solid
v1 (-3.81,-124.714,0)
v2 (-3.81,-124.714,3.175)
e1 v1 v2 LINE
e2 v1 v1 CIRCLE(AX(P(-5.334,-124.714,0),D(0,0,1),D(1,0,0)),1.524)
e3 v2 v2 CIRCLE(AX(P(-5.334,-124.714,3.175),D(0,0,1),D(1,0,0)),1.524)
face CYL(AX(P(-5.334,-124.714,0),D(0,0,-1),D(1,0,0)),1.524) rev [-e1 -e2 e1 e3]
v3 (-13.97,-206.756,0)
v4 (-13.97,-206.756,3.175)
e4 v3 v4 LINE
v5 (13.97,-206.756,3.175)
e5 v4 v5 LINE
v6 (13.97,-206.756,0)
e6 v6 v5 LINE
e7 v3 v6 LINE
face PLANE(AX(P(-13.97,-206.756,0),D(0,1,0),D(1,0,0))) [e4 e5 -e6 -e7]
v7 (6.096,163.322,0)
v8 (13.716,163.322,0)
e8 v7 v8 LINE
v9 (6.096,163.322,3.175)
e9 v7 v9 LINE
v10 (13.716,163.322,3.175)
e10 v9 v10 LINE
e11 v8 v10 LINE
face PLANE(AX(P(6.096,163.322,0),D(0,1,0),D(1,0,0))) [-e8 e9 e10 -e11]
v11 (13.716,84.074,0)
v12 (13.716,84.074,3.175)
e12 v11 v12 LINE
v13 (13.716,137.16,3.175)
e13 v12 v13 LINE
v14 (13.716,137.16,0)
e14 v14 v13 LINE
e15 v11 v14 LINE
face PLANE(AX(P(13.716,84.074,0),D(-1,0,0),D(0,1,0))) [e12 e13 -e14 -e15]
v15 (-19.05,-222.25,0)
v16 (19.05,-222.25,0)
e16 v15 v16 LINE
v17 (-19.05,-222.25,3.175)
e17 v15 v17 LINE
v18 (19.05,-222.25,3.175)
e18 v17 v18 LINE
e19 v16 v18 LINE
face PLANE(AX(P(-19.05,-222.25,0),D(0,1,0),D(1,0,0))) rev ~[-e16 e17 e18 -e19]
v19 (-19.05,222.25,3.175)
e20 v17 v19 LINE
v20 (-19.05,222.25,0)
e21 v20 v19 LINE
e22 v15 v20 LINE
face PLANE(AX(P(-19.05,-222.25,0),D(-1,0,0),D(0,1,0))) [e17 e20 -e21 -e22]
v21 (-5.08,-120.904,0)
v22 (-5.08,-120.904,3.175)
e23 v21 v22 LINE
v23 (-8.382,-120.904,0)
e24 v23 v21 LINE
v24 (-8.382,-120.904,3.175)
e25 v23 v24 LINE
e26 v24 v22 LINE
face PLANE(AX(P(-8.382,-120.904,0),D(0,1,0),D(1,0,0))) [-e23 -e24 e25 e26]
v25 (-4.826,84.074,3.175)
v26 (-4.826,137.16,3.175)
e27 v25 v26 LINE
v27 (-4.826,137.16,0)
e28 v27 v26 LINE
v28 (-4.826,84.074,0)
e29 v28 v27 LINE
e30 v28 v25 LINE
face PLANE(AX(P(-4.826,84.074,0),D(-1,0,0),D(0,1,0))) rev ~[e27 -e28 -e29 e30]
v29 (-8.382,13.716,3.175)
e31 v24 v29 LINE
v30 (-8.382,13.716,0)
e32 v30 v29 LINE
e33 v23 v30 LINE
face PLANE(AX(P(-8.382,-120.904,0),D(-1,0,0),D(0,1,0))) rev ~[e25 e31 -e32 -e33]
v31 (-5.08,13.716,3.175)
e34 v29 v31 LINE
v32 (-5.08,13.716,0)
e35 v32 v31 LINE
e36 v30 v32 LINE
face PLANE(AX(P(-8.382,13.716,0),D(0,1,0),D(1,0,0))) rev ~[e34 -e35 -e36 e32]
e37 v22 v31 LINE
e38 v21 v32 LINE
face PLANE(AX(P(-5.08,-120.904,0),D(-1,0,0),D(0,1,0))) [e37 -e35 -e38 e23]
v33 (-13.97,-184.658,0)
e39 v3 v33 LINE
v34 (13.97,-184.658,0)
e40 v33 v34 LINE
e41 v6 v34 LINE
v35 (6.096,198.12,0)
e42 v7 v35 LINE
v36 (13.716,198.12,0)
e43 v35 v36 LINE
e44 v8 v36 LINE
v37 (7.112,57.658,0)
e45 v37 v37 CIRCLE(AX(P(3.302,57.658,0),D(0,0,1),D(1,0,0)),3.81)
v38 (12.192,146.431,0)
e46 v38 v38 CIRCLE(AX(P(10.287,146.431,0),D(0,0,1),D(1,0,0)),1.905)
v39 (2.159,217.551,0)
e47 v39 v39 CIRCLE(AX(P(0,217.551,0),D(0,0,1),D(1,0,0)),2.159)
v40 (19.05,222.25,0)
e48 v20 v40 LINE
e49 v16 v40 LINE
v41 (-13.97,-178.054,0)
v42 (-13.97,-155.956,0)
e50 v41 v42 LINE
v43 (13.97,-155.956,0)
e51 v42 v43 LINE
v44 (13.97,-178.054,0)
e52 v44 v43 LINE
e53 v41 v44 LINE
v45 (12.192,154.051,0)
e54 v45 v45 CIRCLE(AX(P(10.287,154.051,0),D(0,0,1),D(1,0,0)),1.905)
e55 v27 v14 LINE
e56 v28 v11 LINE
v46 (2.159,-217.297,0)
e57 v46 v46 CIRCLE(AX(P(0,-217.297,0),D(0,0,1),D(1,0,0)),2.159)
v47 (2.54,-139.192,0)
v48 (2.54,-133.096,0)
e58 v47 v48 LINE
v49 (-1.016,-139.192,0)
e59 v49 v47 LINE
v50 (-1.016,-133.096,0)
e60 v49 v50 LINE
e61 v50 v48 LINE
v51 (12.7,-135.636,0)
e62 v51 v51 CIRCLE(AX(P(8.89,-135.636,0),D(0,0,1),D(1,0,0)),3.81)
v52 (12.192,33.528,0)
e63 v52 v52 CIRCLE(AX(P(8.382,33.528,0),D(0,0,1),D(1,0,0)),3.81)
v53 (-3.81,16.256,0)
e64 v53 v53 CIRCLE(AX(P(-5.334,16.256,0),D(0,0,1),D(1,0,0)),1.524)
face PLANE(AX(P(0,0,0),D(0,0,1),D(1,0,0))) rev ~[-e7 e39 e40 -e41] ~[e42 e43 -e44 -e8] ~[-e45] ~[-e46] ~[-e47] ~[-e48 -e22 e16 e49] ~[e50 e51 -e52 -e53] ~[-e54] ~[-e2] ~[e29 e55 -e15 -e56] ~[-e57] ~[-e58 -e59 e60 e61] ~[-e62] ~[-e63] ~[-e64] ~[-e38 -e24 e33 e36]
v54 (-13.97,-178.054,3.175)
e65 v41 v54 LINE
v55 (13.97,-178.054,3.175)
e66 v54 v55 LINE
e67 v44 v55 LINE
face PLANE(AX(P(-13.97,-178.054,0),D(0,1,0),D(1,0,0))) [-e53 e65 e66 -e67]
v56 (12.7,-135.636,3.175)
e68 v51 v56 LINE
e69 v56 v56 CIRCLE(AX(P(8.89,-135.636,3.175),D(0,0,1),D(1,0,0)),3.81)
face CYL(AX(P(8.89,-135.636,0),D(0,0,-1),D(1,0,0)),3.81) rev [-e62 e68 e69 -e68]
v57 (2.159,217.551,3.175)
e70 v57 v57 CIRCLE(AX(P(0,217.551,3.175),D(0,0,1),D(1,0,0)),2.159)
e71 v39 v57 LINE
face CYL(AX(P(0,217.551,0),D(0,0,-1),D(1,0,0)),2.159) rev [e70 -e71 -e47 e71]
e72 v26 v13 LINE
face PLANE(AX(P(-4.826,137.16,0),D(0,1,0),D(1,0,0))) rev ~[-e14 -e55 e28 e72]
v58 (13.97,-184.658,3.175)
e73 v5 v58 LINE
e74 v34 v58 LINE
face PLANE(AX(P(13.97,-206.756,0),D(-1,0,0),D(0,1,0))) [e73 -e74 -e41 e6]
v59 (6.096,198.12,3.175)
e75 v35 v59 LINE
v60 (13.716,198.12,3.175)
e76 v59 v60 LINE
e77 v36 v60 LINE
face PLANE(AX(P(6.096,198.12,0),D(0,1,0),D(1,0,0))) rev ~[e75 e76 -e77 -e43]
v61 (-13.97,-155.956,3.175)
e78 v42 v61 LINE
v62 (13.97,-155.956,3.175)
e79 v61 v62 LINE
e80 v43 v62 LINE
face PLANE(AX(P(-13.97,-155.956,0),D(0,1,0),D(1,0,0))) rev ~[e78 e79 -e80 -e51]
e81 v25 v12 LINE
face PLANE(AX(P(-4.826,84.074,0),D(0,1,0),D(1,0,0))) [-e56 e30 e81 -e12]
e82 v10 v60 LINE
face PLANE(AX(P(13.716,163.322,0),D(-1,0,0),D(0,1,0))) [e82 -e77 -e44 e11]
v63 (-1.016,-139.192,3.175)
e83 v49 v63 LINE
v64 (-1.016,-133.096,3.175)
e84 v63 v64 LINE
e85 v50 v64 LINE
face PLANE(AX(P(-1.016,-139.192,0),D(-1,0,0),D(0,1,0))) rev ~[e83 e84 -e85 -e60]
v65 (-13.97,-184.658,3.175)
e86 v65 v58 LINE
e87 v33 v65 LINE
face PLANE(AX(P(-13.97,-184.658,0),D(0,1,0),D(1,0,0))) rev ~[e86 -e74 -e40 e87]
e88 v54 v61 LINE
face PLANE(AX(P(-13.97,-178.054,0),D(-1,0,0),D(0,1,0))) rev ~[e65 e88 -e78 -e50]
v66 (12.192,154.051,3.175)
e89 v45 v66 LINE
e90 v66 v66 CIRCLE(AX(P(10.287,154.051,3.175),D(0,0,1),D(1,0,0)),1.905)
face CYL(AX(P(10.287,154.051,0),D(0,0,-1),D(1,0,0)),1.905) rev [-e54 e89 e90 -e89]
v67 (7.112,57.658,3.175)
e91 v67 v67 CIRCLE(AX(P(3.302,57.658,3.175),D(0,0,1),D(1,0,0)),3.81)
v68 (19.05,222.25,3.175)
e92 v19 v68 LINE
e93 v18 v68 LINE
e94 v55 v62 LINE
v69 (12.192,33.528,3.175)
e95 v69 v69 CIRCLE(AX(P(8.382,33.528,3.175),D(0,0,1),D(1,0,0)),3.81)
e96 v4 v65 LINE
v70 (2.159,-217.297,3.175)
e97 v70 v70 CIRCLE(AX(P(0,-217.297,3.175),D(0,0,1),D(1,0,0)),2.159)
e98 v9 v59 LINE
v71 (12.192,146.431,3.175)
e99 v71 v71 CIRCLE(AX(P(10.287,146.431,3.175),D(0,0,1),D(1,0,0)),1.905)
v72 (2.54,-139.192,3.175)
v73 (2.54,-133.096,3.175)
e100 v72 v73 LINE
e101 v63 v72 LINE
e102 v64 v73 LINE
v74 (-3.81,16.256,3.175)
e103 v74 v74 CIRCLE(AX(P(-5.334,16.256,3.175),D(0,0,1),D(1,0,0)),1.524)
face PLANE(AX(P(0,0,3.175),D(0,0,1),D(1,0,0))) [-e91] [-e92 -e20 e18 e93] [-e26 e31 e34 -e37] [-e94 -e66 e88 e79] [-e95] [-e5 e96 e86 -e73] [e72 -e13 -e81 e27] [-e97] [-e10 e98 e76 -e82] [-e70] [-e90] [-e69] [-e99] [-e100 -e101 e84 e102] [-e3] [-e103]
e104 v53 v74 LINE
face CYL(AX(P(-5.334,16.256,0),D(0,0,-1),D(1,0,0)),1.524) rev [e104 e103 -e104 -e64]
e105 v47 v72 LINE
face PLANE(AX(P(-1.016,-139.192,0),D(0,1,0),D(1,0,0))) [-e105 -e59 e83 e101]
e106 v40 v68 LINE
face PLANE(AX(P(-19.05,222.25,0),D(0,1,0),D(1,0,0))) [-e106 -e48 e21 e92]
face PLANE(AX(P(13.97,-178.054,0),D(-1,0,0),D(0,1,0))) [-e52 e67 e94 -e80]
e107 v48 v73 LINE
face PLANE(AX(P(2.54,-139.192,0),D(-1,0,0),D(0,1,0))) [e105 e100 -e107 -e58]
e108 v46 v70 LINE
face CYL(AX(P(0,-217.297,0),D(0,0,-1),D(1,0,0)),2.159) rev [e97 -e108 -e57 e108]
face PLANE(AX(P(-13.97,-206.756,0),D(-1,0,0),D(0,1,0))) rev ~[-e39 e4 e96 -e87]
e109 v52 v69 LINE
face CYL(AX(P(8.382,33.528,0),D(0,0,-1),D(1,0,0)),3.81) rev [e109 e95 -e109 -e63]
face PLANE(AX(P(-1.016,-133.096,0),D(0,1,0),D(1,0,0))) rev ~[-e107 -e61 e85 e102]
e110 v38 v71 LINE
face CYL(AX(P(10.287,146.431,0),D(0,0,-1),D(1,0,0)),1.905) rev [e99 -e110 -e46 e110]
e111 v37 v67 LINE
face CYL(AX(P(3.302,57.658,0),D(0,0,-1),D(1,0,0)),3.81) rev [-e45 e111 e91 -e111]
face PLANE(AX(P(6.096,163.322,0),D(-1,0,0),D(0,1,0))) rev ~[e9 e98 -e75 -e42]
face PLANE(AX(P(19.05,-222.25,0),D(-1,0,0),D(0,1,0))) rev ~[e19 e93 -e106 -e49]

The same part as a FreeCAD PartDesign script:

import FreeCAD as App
import Part
import Sketcher
from FreeCAD import Vector
Q = App.Units.Quantity

doc = App.newDocument("Part")
body = doc.addObject("PartDesign::Body", "Body")

# Sketch on XY plane
sketch1 = body.newObject("Sketcher::SketchObject", "Sketch")
sketch1.AttachmentSupport = (doc.getObject("XY_Plane"), [""])
sketch1.MapMode = "FlatFace"
sketch1.addGeometry(Part.LineSegment(Vector(-19.1, 222.2, 0), Vector(-19.1, -222.2, 0)), False)
sketch1.addGeometry(Part.LineSegment(Vector(-19.1, -222.2, 0), Vector(19.1, -222.2, 0)), False)
sketch1.addGeometry(Part.LineSegment(Vector(19.1, -222.2, 0), Vector(19.1, 222.2, 0)), False)
sketch1.addGeometry(Part.LineSegment(Vector(19.1, 222.2, 0), Vector(-19.1, 222.2, 0)), False)
sketch1.addGeometry(Part.Circle(Vector(0, -217.3, 0), Vector(0, 0, 1), 2.2), False)
sketch1.addGeometry(Part.LineSegment(Vector(14, -206.8, 0), Vector(-14, -206.8, 0)), False)
sketch1.addGeometry(Part.LineSegment(Vector(-14, -206.8, 0), Vector(-14, -184.7, 0)), False)
sketch1.addGeometry(Part.LineSegment(Vector(-14, -184.7, 0), Vector(14, -184.7, 0)), False)
sketch1.addGeometry(Part.LineSegment(Vector(14, -184.7, 0), Vector(14, -206.8, 0)), False)
sketch1.addGeometry(Part.LineSegment(Vector(14, -178.1, 0), Vector(-14, -178.1, 0)), False)
sketch1.addGeometry(Part.LineSegment(Vector(-14, -178.1, 0), Vector(-14, -156, 0)), False)
sketch1.addGeometry(Part.LineSegment(Vector(-14, -156, 0), Vector(14, -156, 0)), False)
sketch1.addGeometry(Part.LineSegment(Vector(14, -156, 0), Vector(14, -178.1, 0)), False)
sketch1.addGeometry(Part.Circle(Vector(-5.3, -124.7, 0), Vector(0, 0, 1), 1.5), False)
sketch1.addGeometry(Part.LineSegment(Vector(-5.1, -120.9, 0), Vector(-8.4, -120.9, 0)), False)
sketch1.addGeometry(Part.LineSegment(Vector(-8.4, -120.9, 0), Vector(-8.4, 13.7, 0)), False)
sketch1.addGeometry(Part.LineSegment(Vector(-8.4, 13.7, 0), Vector(-5.1, 13.7, 0)), False)
sketch1.addGeometry(Part.LineSegment(Vector(-5.1, 13.7, 0), Vector(-5.1, -120.9, 0)), False)
sketch1.addGeometry(Part.LineSegment(Vector(2.5, -139.2, 0), Vector(-1, -139.2, 0)), False)
sketch1.addGeometry(Part.LineSegment(Vector(-1, -139.2, 0), Vector(-1, -133.1, 0)), False)
sketch1.addGeometry(Part.LineSegment(Vector(-1, -133.1, 0), Vector(2.5, -133.1, 0)), False)
sketch1.addGeometry(Part.LineSegment(Vector(2.5, -133.1, 0), Vector(2.5, -139.2, 0)), False)
sketch1.addGeometry(Part.Circle(Vector(8.9, -135.6, 0), Vector(0, 0, 1), 3.8), False)
sketch1.addGeometry(Part.Circle(Vector(-5.3, 16.3, 0), Vector(0, 0, 1), 1.5), False)
sketch1.addGeometry(Part.Circle(Vector(0, 217.6, 0), Vector(0, 0, 1), 2.2), False)
sketch1.addGeometry(Part.Circle(Vector(3.3, 57.7, 0), Vector(0, 0, 1), 3.8), False)
sketch1.addGeometry(Part.Circle(Vector(8.4, 33.5, 0), Vector(0, 0, 1), 3.8), False)
sketch1.addGeometry(Part.LineSegment(Vector(13.7, 84.1, 0), Vector(-4.8, 84.1, 0)), False)
sketch1.addGeometry(Part.LineSegment(Vector(-4.8, 84.1, 0), Vector(-4.8, 137.2, 0)), False)
sketch1.addGeometry(Part.LineSegment(Vector(-4.8, 137.2, 0), Vector(13.7, 137.2, 0)), False)
sketch1.addGeometry(Part.LineSegment(Vector(13.7, 137.2, 0), Vector(13.7, 84.1, 0)), False)
sketch1.addGeometry(Part.Circle(Vector(10.3, 146.4, 0), Vector(0, 0, 1), 1.9), False)
sketch1.addGeometry(Part.Circle(Vector(10.3, 154.1, 0), Vector(0, 0, 1), 1.9), False)
sketch1.addGeometry(Part.LineSegment(Vector(13.7, 163.3, 0), Vector(6.1, 163.3, 0)), False)
sketch1.addGeometry(Part.LineSegment(Vector(6.1, 163.3, 0), Vector(6.1, 198.1, 0)), False)
sketch1.addGeometry(Part.LineSegment(Vector(6.1, 198.1, 0), Vector(13.7, 198.1, 0)), False)
sketch1.addGeometry(Part.LineSegment(Vector(13.7, 198.1, 0), Vector(13.7, 163.3, 0)), False)
sketch1.addConstraint(Sketcher.Constraint("Coincident", 0, 2, 1, 1))
sketch1.addConstraint(Sketcher.Constraint("Coincident", 1, 2, 2, 1))
sketch1.addConstraint(Sketcher.Constraint("Coincident", 2, 2, 3, 1))
sketch1.addConstraint(Sketcher.Constraint("Coincident", 3, 2, 0, 1))
sketch1.addConstraint(Sketcher.Constraint("Coincident", 5, 2, 6, 1))
sketch1.addConstraint(Sketcher.Constraint("Coincident", 6, 2, 7, 1))
sketch1.addConstraint(Sketcher.Constraint("Coincident", 7, 2, 8, 1))
sketch1.addConstraint(Sketcher.Constraint("Coincident", 8, 2, 5, 1))
sketch1.addConstraint(Sketcher.Constraint("Coincident", 9, 2, 10, 1))
sketch1.addConstraint(Sketcher.Constraint("Coincident", 10, 2, 11, 1))
sketch1.addConstraint(Sketcher.Constraint("Coincident", 11, 2, 12, 1))
sketch1.addConstraint(Sketcher.Constraint("Coincident", 12, 2, 9, 1))
sketch1.addConstraint(Sketcher.Constraint("Coincident", 14, 2, 15, 1))
sketch1.addConstraint(Sketcher.Constraint("Coincident", 15, 2, 16, 1))
sketch1.addConstraint(Sketcher.Constraint("Coincident", 16, 2, 17, 1))
sketch1.addConstraint(Sketcher.Constraint("Coincident", 17, 2, 14, 1))
sketch1.addConstraint(Sketcher.Constraint("Coincident", 18, 2, 19, 1))
sketch1.addConstraint(Sketcher.Constraint("Coincident", 19, 2, 20, 1))
sketch1.addConstraint(Sketcher.Constraint("Coincident", 20, 2, 21, 1))
sketch1.addConstraint(Sketcher.Constraint("Coincident", 21, 2, 18, 1))
sketch1.addConstraint(Sketcher.Constraint("Coincident", 27, 2, 28, 1))
sketch1.addConstraint(Sketcher.Constraint("Coincident", 28, 2, 29, 1))
sketch1.addConstraint(Sketcher.Constraint("Coincident", 29, 2, 30, 1))
sketch1.addConstraint(Sketcher.Constraint("Coincident", 30, 2, 27, 1))
sketch1.addConstraint(Sketcher.Constraint("Coincident", 33, 2, 34, 1))
sketch1.addConstraint(Sketcher.Constraint("Coincident", 34, 2, 35, 1))
sketch1.addConstraint(Sketcher.Constraint("Coincident", 35, 2, 36, 1))
sketch1.addConstraint(Sketcher.Constraint("Coincident", 36, 2, 33, 1))
sketch1.addConstraint(Sketcher.Constraint("Vertical", 0))
sketch1.addConstraint(Sketcher.Constraint("Horizontal", 1))
sketch1.addConstraint(Sketcher.Constraint("Vertical", 2))
sketch1.addConstraint(Sketcher.Constraint("Horizontal", 3))
sketch1.addConstraint(Sketcher.Constraint("Horizontal", 5))
sketch1.addConstraint(Sketcher.Constraint("Vertical", 6))
sketch1.addConstraint(Sketcher.Constraint("Horizontal", 7))
sketch1.addConstraint(Sketcher.Constraint("Vertical", 8))
sketch1.addConstraint(Sketcher.Constraint("Horizontal", 9))
sketch1.addConstraint(Sketcher.Constraint("Vertical", 10))
sketch1.addConstraint(Sketcher.Constraint("Horizontal", 11))
sketch1.addConstraint(Sketcher.Constraint("Vertical", 12))
sketch1.addConstraint(Sketcher.Constraint("Horizontal", 14))
sketch1.addConstraint(Sketcher.Constraint("Vertical", 15))
sketch1.addConstraint(Sketcher.Constraint("Horizontal", 16))
sketch1.addConstraint(Sketcher.Constraint("Vertical", 17))
sketch1.addConstraint(Sketcher.Constraint("Horizontal", 18))
sketch1.addConstraint(Sketcher.Constraint("Vertical", 19))
sketch1.addConstraint(Sketcher.Constraint("Horizontal", 20))
sketch1.addConstraint(Sketcher.Constraint("Vertical", 21))
sketch1.addConstraint(Sketcher.Constraint("Horizontal", 27))
sketch1.addConstraint(Sketcher.Constraint("Vertical", 28))
sketch1.addConstraint(Sketcher.Constraint("Horizontal", 29))
sketch1.addConstraint(Sketcher.Constraint("Vertical", 30))
sketch1.addConstraint(Sketcher.Constraint("Horizontal", 33))
sketch1.addConstraint(Sketcher.Constraint("Vertical", 34))
sketch1.addConstraint(Sketcher.Constraint("Horizontal", 35))
sketch1.addConstraint(Sketcher.Constraint("Vertical", 36))
sketch1.addConstraint(Sketcher.Constraint("Equal", 13, 23))
sketch1.addConstraint(Sketcher.Constraint("Equal", 4, 24))
sketch1.addConstraint(Sketcher.Constraint("Equal", 22, 25))
sketch1.addConstraint(Sketcher.Constraint("Equal", 25, 26))
sketch1.addConstraint(Sketcher.Constraint("Equal", 31, 32))
sketch1.addConstraint(Sketcher.Constraint("Symmetric", 0, 2, 2, 2, -1, 1))
sketch1.addConstraint(Sketcher.Constraint("PointOnObject", 4, 3, -2))
sketch1.addConstraint(Sketcher.Constraint("PointOnObject", 24, 3, -2))
sketch1.addConstraint(Sketcher.Constraint("Vertical", 13, 3, 23, 3))
sketch1.addConstraint(Sketcher.Constraint("Vertical", 31, 3, 32, 3))
sketch1.addConstraint(Sketcher.Constraint("Vertical", 6, 2, 9, 2))
sketch1.addConstraint(Sketcher.Constraint("Vertical", 8, 2, 11, 2))
sketch1.addConstraint(Sketcher.Constraint("Vertical", 30, 2, 35, 2))
sketch1.addConstraint(Sketcher.Constraint("Equal", 8, 10))
sketch1.addConstraint(Sketcher.Constraint("Diameter", 22, Q("0.3 in")))
sketch1.addConstraint(Sketcher.Constraint("Diameter", 4, Q("0.17 in")))
sketch1.addConstraint(Sketcher.Constraint("Diameter", 13, Q("0.12 in")))
sketch1.addConstraint(Sketcher.Constraint("Diameter", 31, Q("0.15 in")))
sketch1.addConstraint(Sketcher.Constraint("DistanceX", 1, 1, 1, 2, Q("1.5 in")))
sketch1.addConstraint(Sketcher.Constraint("DistanceX", 5, 2, 5, 1, Q("1.1 in")))
sketch1.addConstraint(Sketcher.Constraint("DistanceX", 33, 2, 33, 1, Q("0.3 in")))
sketch1.addConstraint(Sketcher.Constraint("DistanceY", 0, 2, 0, 1, Q("17.5 in")))
sketch1.addConstraint(Sketcher.Constraint("DistanceY", 15, 1, 15, 2, Q("5.3 in")))
sketch1.addConstraint(Sketcher.Constraint("DistanceX", 14, 2, 14, 1, Q("0.13 in")))
sketch1.addConstraint(Sketcher.Constraint("DistanceX", 18, 2, 18, 1, Q("0.14 in")))
sketch1.addConstraint(Sketcher.Constraint("DistanceX", 27, 2, 27, 1, Q("0.73 in")))
sketch1.addConstraint(Sketcher.Constraint("DistanceY", 6, 1, 6, 2, Q("0.87 in")))
sketch1.addConstraint(Sketcher.Constraint("DistanceY", 19, 1, 19, 2, Q("0.24 in")))
sketch1.addConstraint(Sketcher.Constraint("DistanceY", 28, 1, 28, 2, Q("2.09 in")))
sketch1.addConstraint(Sketcher.Constraint("DistanceY", 34, 1, 34, 2, Q("1.37 in")))
sketch1.addConstraint(Sketcher.Constraint("DistanceX", 16, 2, -1, 1, Q("0.2 in")))
sketch1.addConstraint(Sketcher.Constraint("DistanceX", -1, 1, 20, 2, Q("0.1 in")))
sketch1.addConstraint(Sketcher.Constraint("DistanceY", -1, 1, 28, 2, Q("5.4 in")))
sketch1.addConstraint(Sketcher.Constraint("DistanceY", -1, 1, 34, 2, Q("7.8 in")))
sketch1.addConstraint(Sketcher.Constraint("DistanceX", 25, 3, 26, 3, Q("0.2 in")))
sketch1.addConstraint(Sketcher.Constraint("DistanceY", 31, 3, 24, 3, Q("2.8 in")))
sketch1.addConstraint(Sketcher.Constraint("DistanceY", 31, 3, 32, 3, Q("0.3 in")))
sketch1.addConstraint(Sketcher.Constraint("DistanceX", 0, 2, 22, 3, Q("1.1 in")))
sketch1.addConstraint(Sketcher.Constraint("DistanceX", 0, 2, 5, 2, Q("0.2 in")))
sketch1.addConstraint(Sketcher.Constraint("DistanceY", 5, 2, 22, 3, Q("2.8 in")))
sketch1.addConstraint(Sketcher.Constraint("DistanceY", 10, 2, 22, 3, Q("0.8 in")))
sketch1.addConstraint(Sketcher.Constraint("DistanceY", 15, 2, 23, 3, Q("0.1 in")))
sketch1.addConstraint(Sketcher.Constraint("DistanceY", 22, 3, 19, 2, Q("0.1 in")))
sketch1.addConstraint(Sketcher.Constraint("DistanceX", 13, 3, -1, 1, Q("0.21 in")))
sketch1.addConstraint(Sketcher.Constraint("DistanceY", 13, 3, -1, 1, Q("4.91 in")))
sketch1.addConstraint(Sketcher.Constraint("DistanceY", 22, 3, -1, 1, Q("5.34 in")))
sketch1.addConstraint(Sketcher.Constraint("DistanceY", -1, 1, 23, 3, Q("0.64 in")))
sketch1.addConstraint(Sketcher.Constraint("DistanceX", -1, 1, 25, 3, Q("0.13 in")))
sketch1.addConstraint(Sketcher.Constraint("DistanceY", -1, 1, 25, 3, Q("2.27 in")))
sketch1.addConstraint(Sketcher.Constraint("DistanceY", -1, 1, 26, 3, Q("1.32 in")))
sketch1.addConstraint(Sketcher.Constraint("DistanceX", 27, 2, -1, 1, Q("0.19 in")))
sketch1.addConstraint(Sketcher.Constraint("DistanceY", 4, 3, 24, 3, Q("17.12 in")))
sketch1.addConstraint(Sketcher.Constraint("DistanceY", 4, 3, -1, 1, Q("8.555 in")))
sketch1.addConstraint(Sketcher.Constraint("DistanceX", -1, 1, 31, 3, Q("0.405 in")))
pad1 = body.newObject("PartDesign::Pad", "Pad")
pad1.Profile = sketch1
pad1.Length = Q("0.125 in")

doc.recompute()
